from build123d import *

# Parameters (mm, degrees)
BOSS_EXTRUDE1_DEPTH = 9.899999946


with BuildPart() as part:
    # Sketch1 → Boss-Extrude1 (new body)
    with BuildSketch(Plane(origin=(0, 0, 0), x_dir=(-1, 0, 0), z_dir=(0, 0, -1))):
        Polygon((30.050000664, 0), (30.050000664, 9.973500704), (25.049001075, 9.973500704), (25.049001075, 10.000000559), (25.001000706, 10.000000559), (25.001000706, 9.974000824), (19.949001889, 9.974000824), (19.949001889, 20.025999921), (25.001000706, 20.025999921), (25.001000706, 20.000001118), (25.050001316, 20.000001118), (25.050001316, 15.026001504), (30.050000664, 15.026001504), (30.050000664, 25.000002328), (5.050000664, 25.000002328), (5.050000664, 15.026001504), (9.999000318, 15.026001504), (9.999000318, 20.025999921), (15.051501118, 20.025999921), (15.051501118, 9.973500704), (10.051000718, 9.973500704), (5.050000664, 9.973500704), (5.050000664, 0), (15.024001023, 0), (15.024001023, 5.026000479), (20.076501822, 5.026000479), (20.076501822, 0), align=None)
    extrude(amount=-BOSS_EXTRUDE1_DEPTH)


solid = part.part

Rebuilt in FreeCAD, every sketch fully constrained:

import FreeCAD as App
import Part
import Sketcher

V = App.Vector

doc = App.newDocument("Part")
params = doc.addObject("Spreadsheet::Sheet", "Params")
for row, (alias, value) in enumerate([
    ("sketch1_width", "4.999999 mm"),
    ("sketch1_width2", "25 mm"),
    ("pad1_length", "9.9 mm"),
], start=1):
    params.set(f"A{row}", alias)
    params.set(f"B{row}", "=" + value)
    params.setAlias(f"B{row}", alias)

body = doc.addObject("PartDesign::Body", "Body")

# Sketch on XY plane
sketch1 = doc.addObject("Sketcher::SketchObject", "Sketch")
body.addObject(sketch1)
sketch1.AttachmentSupport = (doc.XY_Plane, [""])
sketch1.MapMode = "FlatFace"
sketch1.addGeometry([
    Part.LineSegment(V(-30.050001, 0, 0), V(-30.050001, 9.973501, 0)),  # 0
    Part.LineSegment(V(-30.050001, 9.973501, 0), V(-25.049001, 9.973501, 0)),  # 1
    Part.LineSegment(V(-25.049001, 9.973501, 0), V(-25.049001, 10.000001, 0)),  # 2
    Part.LineSegment(V(-25.049001, 10.000001, 0), V(-25.001001, 10.000001, 0)),  # 3
    Part.LineSegment(V(-25.001001, 10.000001, 0), V(-25.001001, 9.974001, 0)),  # 4
    Part.LineSegment(V(-25.001001, 9.974001, 0), V(-19.949002, 9.974001, 0)),  # 5
    Part.LineSegment(V(-19.949002, 9.974001, 0), V(-19.949002, 20.026, 0)),  # 6
    Part.LineSegment(V(-19.949002, 20.026, 0), V(-25.001001, 20.026, 0)),  # 7
    Part.LineSegment(V(-25.001001, 20.026, 0), V(-25.001001, 20.000001, 0)),  # 8
    Part.LineSegment(V(-25.001001, 20.000001, 0), V(-25.050001, 20.000001, 0)),  # 9
    Part.LineSegment(V(-25.050001, 20.000001, 0), V(-25.050001, 15.026002, 0)),  # 10
    Part.LineSegment(V(-25.050001, 15.026002, 0), V(-30.050001, 15.026002, 0)),  # 11
    Part.LineSegment(V(-30.050001, 15.026002, 0), V(-30.050001, 25.000002, 0)),  # 12
    Part.LineSegment(V(-30.050001, 25.000002, 0), V(-5.050001, 25.000002, 0)),  # 13
    Part.LineSegment(V(-5.050001, 25.000002, 0), V(-5.050001, 15.026002, 0)),  # 14
    Part.LineSegment(V(-5.050001, 15.026002, 0), V(-9.999, 15.026002, 0)),  # 15
    Part.LineSegment(V(-9.999, 15.026002, 0), V(-9.999, 20.026, 0)),  # 16
    Part.LineSegment(V(-9.999, 20.026, 0), V(-15.051501, 20.026, 0)),  # 17
    Part.LineSegment(V(-15.051501, 20.026, 0), V(-15.051501, 9.973501, 0)),  # 18
    Part.LineSegment(V(-15.051501, 9.973501, 0), V(-5.050001, 9.973501, 0)),  # 19
    Part.LineSegment(V(-5.050001, 9.973501, 0), V(-5.050001, 0, 0)),  # 20
    Part.LineSegment(V(-5.050001, 0, 0), V(-15.024001, 0, 0)),  # 21
    Part.LineSegment(V(-15.024001, 0, 0), V(-15.024001, 5.026, 0)),  # 22
    Part.LineSegment(V(-15.024001, 5.026, 0), V(-20.076502, 5.026, 0)),  # 23
    Part.LineSegment(V(-20.076502, 5.026, 0), V(-20.076502, 0, 0)),  # 24
    Part.LineSegment(V(-20.076502, 0, 0), V(-30.050001, 0, 0)),  # 25
], False)
sketch1.addConstraint([
    Sketcher.Constraint("Coincident", 0, 2, 1, 1),
    Sketcher.Constraint("Coincident", 1, 2, 2, 1),
    Sketcher.Constraint("Coincident", 2, 2, 3, 1),
    Sketcher.Constraint("Coincident", 3, 2, 4, 1),
    Sketcher.Constraint("Coincident", 4, 2, 5, 1),
    Sketcher.Constraint("Coincident", 5, 2, 6, 1),
    Sketcher.Constraint("Coincident", 6, 2, 7, 1),
    Sketcher.Constraint("Coincident", 7, 2, 8, 1),
    Sketcher.Constraint("Coincident", 8, 2, 9, 1),
    Sketcher.Constraint("Coincident", 9, 2, 10, 1),
    Sketcher.Constraint("Coincident", 10, 2, 11, 1),
    Sketcher.Constraint("Coincident", 11, 2, 12, 1),
    Sketcher.Constraint("Coincident", 12, 2, 13, 1),
    Sketcher.Constraint("Coincident", 13, 2, 14, 1),
    Sketcher.Constraint("Coincident", 14, 2, 15, 1),
    Sketcher.Constraint("Coincident", 15, 2, 16, 1),
    Sketcher.Constraint("Coincident", 16, 2, 17, 1),
    Sketcher.Constraint("Coincident", 17, 2, 18, 1),
    Sketcher.Constraint("Coincident", 18, 2, 19, 1),
    Sketcher.Constraint("Coincident", 19, 2, 20, 1),
    Sketcher.Constraint("Coincident", 20, 2, 21, 1),
    Sketcher.Constraint("Coincident", 21, 2, 22, 1),
    Sketcher.Constraint("Coincident", 22, 2, 23, 1),
    Sketcher.Constraint("Coincident", 23, 2, 24, 1),
    Sketcher.Constraint("Coincident", 24, 2, 25, 1),
    Sketcher.Constraint("Coincident", 25, 2, 0, 1),
    Sketcher.Constraint("Vertical", 0),
    Sketcher.Constraint("Horizontal", 1),
    Sketcher.Constraint("Vertical", 2),
    Sketcher.Constraint("Horizontal", 3),
    Sketcher.Constraint("Vertical", 4),
    Sketcher.Constraint("Horizontal", 5),
    Sketcher.Constraint("Vertical", 6),
    Sketcher.Constraint("Horizontal", 7),
    Sketcher.Constraint("Vertical", 8),
    Sketcher.Constraint("Horizontal", 9),
    Sketcher.Constraint("Vertical", 10),
    Sketcher.Constraint("Horizontal", 11),
    Sketcher.Constraint("Vertical", 12),
    Sketcher.Constraint("Horizontal", 13),
    Sketcher.Constraint("Vertical", 14),
    Sketcher.Constraint("Horizontal", 15),
    Sketcher.Constraint("Vertical", 16),
    Sketcher.Constraint("Horizontal", 17),
    Sketcher.Constraint("Vertical", 18),
    Sketcher.Constraint("Horizontal", 19),
    Sketcher.Constraint("Vertical", 20),
    Sketcher.Constraint("Horizontal", 21),
    Sketcher.Constraint("Vertical", 22),
    Sketcher.Constraint("Horizontal", 23),
    Sketcher.Constraint("Vertical", 24),
    Sketcher.Constraint("Horizontal", 25),
    Sketcher.Constraint("PointOnObject", 20, 2, -1),
    Sketcher.Constraint("PointOnObject", 24, 2, -1),
    Sketcher.Constraint("Horizontal", 11, 2, 14, 2),
    Sketcher.Constraint("Horizontal", 7, 2, 16, 2),
    Sketcher.Constraint("Horizontal", 1, 2, 18, 2),
    Sketcher.Constraint("Vertical", 4, 2, 7, 2),
    Sketcher.Constraint("Vertical", 0, 2, 11, 2),
    Sketcher.Constraint("Vertical", 14, 2, 19, 2),
    Sketcher.Constraint("Equal", 17, 23),
    Sketcher.Constraint("Equal", 25, 0),
    Sketcher.Constraint("Equal", 4, 8),
    Sketcher.Constraint("Equal", 21, 12),
    Sketcher.Constraint("Equal", 11, 16),
    Sketcher.Constraint("DistanceX", 11, 2, 11, 1, 4.999999),
    Sketcher.Constraint("DistanceX", 13, 1, 13, 2, 25.0),
    Sketcher.Constraint("DistanceY", -1, 1, 2, 2, 10.000001),
    Sketcher.Constraint("DistanceY", -1, 1, 8, 2, 20.000001),
    Sketcher.Constraint("DistanceY", 9, 2, 12, 2, 5.000001),
    Sketcher.Constraint("DistanceX", 1, 2, 5, 2, 5.099999),
    Sketcher.Constraint("DistanceX", 1, 1, 1, 2, 5.001),
    Sketcher.Constraint("DistanceX", 3, 1, 3, 2, 0.048),
    Sketcher.Constraint("DistanceX", 15, 2, 15, 1, 4.949),
    Sketcher.Constraint("DistanceX", 21, 2, 21, 1, 9.974),
    Sketcher.Constraint("DistanceY", 22, 1, 22, 2, 5.026),
    Sketcher.Constraint("DistanceX", 0, 2, -1, 1, 30.050001),
    Sketcher.Constraint("DistanceX", 17, 2, 17, 1, 5.052501),
])
sketch1.setExpression("Constraints[65]", "Params.sketch1_width")
sketch1.setExpression("Constraints[66]", "Params.sketch1_width2")
pad1 = doc.addObject("PartDesign::Pad", "Pad")
body.addObject(pad1)
pad1.Profile = sketch1
pad1.setExpression("Length", "Params.pad1_length")

doc.recompute()
